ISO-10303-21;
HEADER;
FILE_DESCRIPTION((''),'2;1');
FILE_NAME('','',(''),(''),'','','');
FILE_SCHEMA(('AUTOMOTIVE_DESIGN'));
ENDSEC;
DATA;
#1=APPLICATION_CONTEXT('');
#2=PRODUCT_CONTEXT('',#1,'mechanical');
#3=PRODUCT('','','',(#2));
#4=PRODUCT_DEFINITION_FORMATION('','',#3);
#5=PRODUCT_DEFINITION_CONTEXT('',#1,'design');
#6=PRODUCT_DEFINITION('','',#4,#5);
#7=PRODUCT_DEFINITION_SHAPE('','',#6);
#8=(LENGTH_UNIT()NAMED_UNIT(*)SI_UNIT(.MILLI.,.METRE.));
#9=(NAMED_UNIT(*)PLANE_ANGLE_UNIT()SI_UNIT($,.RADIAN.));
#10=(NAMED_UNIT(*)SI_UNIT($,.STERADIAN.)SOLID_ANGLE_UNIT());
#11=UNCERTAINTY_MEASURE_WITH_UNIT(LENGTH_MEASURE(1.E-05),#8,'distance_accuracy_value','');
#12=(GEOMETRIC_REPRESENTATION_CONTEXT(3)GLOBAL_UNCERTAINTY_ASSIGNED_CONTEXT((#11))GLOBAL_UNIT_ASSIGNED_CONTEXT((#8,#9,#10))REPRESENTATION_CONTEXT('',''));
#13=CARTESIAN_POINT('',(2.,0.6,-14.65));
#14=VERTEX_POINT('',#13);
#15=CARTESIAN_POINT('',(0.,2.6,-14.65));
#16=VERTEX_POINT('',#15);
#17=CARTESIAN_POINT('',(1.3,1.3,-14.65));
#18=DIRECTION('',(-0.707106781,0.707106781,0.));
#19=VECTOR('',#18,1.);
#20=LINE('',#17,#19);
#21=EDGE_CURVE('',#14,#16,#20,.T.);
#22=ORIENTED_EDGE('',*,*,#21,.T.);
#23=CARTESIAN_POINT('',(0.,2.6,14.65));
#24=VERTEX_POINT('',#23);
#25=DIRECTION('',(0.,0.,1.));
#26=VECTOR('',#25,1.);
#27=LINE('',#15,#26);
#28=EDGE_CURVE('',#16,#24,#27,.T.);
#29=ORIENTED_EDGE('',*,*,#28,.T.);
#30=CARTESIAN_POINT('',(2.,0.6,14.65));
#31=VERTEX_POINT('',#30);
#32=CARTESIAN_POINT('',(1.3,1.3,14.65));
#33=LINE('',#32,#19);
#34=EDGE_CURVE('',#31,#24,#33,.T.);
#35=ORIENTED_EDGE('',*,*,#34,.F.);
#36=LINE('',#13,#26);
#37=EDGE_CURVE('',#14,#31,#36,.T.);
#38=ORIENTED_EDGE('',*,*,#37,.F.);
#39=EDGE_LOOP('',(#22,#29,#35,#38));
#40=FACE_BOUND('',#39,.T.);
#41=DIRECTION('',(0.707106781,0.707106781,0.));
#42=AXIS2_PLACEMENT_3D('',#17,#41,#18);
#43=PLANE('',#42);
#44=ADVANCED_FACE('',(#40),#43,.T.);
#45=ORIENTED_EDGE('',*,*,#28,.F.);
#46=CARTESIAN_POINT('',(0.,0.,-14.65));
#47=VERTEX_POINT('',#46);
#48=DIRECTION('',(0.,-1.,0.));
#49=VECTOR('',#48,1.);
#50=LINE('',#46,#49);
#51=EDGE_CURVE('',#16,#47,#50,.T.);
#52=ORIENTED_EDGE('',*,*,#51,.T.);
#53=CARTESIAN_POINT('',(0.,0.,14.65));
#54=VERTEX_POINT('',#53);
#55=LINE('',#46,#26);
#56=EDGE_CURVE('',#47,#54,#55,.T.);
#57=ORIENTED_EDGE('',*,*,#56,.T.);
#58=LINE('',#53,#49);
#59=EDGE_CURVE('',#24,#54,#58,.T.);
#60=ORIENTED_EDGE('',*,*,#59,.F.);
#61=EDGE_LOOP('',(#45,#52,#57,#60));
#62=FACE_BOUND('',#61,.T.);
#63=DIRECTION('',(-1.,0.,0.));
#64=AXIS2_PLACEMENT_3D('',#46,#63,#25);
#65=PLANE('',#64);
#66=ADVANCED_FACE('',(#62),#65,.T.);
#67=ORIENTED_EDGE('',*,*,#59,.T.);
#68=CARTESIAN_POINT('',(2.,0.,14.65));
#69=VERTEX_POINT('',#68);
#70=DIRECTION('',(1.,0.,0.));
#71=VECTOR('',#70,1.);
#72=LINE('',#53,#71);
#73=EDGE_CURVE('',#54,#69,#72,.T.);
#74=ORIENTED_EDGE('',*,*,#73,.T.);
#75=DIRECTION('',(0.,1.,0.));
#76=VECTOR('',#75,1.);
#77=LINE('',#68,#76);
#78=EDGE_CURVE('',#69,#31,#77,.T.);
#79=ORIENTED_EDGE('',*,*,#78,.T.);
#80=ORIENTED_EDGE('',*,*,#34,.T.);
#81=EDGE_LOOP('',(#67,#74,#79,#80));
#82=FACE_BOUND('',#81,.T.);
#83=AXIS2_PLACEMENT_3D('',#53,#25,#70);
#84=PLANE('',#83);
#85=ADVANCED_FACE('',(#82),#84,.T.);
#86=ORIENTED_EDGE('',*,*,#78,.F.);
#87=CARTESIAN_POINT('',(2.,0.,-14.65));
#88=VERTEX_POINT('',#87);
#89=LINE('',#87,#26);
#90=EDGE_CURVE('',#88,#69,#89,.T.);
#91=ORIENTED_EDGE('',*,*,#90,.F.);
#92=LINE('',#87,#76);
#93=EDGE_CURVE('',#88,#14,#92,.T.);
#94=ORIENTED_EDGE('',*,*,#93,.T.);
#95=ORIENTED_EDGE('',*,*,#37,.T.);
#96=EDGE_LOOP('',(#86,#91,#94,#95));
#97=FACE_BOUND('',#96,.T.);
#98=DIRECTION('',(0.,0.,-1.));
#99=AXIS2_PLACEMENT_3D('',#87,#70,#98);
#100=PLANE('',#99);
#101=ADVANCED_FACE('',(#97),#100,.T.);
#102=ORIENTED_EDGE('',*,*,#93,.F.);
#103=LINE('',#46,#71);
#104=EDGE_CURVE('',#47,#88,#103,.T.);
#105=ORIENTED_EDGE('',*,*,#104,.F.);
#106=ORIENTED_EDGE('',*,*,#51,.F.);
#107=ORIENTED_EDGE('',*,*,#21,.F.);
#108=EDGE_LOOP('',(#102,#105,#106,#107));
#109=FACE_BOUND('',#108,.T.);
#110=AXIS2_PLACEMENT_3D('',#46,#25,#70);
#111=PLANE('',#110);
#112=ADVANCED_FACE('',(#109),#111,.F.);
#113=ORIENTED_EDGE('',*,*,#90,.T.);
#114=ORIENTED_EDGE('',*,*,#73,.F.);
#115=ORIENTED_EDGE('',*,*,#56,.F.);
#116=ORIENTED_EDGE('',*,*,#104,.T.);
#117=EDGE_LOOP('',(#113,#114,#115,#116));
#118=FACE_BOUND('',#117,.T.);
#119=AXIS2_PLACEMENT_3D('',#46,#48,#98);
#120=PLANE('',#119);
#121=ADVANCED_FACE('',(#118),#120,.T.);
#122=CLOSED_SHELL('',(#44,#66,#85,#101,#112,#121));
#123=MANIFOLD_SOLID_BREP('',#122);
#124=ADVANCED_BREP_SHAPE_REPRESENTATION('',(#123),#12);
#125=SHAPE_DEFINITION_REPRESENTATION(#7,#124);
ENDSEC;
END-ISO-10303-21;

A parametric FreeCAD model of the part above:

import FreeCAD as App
import Part
import Sketcher
Q = App.Units.Quantity


def add_polygon(sketch, points):
    """Adds a closed chain of lines whose ends are joined by coincident constraints."""
    first, n = sketch.GeometryCount, len(points)
    for a, b in zip(points, points[1:] + points[:1]):
        sketch.addGeometry(Part.LineSegment(App.Vector(*a, 0), App.Vector(*b, 0)), False)
    for i in range(n):
        sketch.addConstraint(Sketcher.Constraint("Coincident", first + i, 2, first + (i + 1) % n, 1))

doc = App.newDocument("Part")
body = doc.addObject("PartDesign::Body", "Body")

# Sketch on XY plane
sketch1 = body.newObject("Sketcher::SketchObject", "Sketch")
sketch1.AttachmentSupport = (doc.getObject("XY_Plane"), [""])
sketch1.MapMode = "FlatFace"
add_polygon(sketch1, [(0, 2.6), (0, 0), (2, 0), (2, 0.6)])  # lines 0-3
sketch1.addConstraint(Sketcher.Constraint("Vertical", 0))
sketch1.addConstraint(Sketcher.Constraint("Horizontal", 1))
sketch1.addConstraint(Sketcher.Constraint("Vertical", 2))
sketch1.addConstraint(Sketcher.Constraint("Coincident", 0, 2, -1, 1))
sketch1.addConstraint(Sketcher.Constraint("DistanceX", 1, 1, 1, 2, 2.0))
sketch1.addConstraint(Sketcher.Constraint("Angle", 3, Q("135 deg")))
sketch1.addConstraint(Sketcher.Constraint("DistanceY", 0, 2, 0, 1, 2.6))
pad1 = body.newObject("PartDesign::Pad", "Pad")
pad1.Profile = sketch1
pad1.Length = 29.3
pad1.Midplane = True

doc.recompute()
